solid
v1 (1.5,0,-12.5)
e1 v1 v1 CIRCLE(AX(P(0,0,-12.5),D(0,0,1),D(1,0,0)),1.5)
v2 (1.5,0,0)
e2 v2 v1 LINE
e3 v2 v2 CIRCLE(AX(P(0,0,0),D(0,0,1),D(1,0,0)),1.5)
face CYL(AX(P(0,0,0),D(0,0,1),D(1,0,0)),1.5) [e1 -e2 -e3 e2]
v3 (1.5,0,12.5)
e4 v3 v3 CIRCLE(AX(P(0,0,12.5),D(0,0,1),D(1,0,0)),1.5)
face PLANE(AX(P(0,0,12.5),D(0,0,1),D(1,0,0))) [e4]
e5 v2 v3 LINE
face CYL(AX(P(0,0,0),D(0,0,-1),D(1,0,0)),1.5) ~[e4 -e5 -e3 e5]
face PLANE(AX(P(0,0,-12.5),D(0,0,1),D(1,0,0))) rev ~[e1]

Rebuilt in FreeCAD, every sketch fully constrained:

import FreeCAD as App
import Part
import Sketcher

doc = App.newDocument("Part")
body = doc.addObject("PartDesign::Body", "Body")

# Sketch on XY plane
sketch1 = body.newObject("Sketcher::SketchObject", "Sketch")
sketch1.AttachmentSupport = (doc.getObject("XY_Plane"), [""])
sketch1.MapMode = "FlatFace"
sketch1.addGeometry(Part.Circle(App.Vector(0, 0, 0), App.Vector(0, 0, 1), 1.5), False)
sketch1.addConstraint(Sketcher.Constraint("Coincident", 0, 3, -1, 1))
sketch1.addConstraint(Sketcher.Constraint("Diameter", 0, 3.0))
pad1 = body.newObject("PartDesign::Pad", "Pad")
pad1.Profile = sketch1
pad1.Length = 25
pad1.Midplane = True

doc.recompute()
